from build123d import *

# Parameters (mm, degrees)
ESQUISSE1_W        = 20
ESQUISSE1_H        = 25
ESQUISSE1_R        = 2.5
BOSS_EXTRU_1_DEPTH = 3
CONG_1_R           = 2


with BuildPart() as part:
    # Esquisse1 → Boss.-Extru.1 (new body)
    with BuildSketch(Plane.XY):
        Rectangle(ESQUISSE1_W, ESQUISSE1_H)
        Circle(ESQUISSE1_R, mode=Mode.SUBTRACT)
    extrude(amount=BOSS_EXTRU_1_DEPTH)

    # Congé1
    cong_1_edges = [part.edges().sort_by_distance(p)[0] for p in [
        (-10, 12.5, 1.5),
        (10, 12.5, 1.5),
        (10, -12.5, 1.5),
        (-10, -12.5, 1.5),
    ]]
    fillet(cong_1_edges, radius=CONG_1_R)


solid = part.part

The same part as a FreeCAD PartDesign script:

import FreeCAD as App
import Part
import Sketcher
Q = App.Units.Quantity


def edges_at(feature, points):
    """Names of the edges that pass closest to the given points."""
    edges = feature.Shape.Edges
    near = lambda p: min(range(len(edges)), key=lambda i: edges[i].distToShape(Part.Vertex(*p))[0])
    return sorted({f"Edge{near(p) + 1}" for p in points})


def add_polygon(sketch, points):
    """Adds a closed chain of lines whose ends are joined by coincident constraints."""
    first, n = sketch.GeometryCount, len(points)
    for a, b in zip(points, points[1:] + points[:1]):
        sketch.addGeometry(Part.LineSegment(App.Vector(*a, 0), App.Vector(*b, 0)), False)
    for i in range(n):
        sketch.addConstraint(Sketcher.Constraint("Coincident", first + i, 2, first + (i + 1) % n, 1))

doc = App.newDocument("Part")
params = doc.addObject("Spreadsheet::Sheet", "Params")
for row, (alias, value) in enumerate([
    ("sketch1_diameter", "5 mm"),
    ("sketch1_width", "20 mm"),
    ("sketch1_height", "25 mm"),
    ("pad1_length", "3 mm"),
    ("fillet_radius", "2 mm"),
], start=1):
    params.set(f"A{row}", alias)
    params.set(f"B{row}", "=" + value)
    params.setAlias(f"B{row}", alias)

body = doc.addObject("PartDesign::Body", "Body")

sketch1 = body.newObject("Sketcher::SketchObject", "Sketch")
sketch1.AttachmentSupport = (doc.getObject("XY_Plane"), [""])
sketch1.MapMode = "FlatFace"
add_polygon(sketch1, [(-10, 12.5), (-10, -12.5), (10, -12.5), (10, 12.5)])
sketch1.addGeometry(Part.Circle(App.Vector(0, 0, 0), App.Vector(0, 0, 1), 2.5), False)
sketch1.addConstraint([
    Sketcher.Constraint("Vertical", 0),
    Sketcher.Constraint("Horizontal", 1),
    Sketcher.Constraint("Vertical", 2),
    Sketcher.Constraint("Horizontal", 3),
    Sketcher.Constraint("Coincident", 4, 3, -1, 1),
    Sketcher.Constraint("Symmetric", 0, 2, 2, 2, -1, 1),
    Sketcher.Constraint("Diameter", 4, Q("5 mm")),
    Sketcher.Constraint("DistanceX", 1, 1, 1, 2, Q("20 mm")),
    Sketcher.Constraint("DistanceY", 0, 2, 0, 1, Q("25 mm")),
])
sketch1.setExpression("Constraints[10]", "Params.sketch1_diameter")
sketch1.setExpression("Constraints[11]", "Params.sketch1_width")
sketch1.setExpression("Constraints[12]", "Params.sketch1_height")
pad1 = body.newObject("PartDesign::Pad", "Pad")
pad1.Profile = sketch1
pad1.setExpression("Length", "Params.pad1_length")
doc.recompute()

fillet = body.newObject("PartDesign::Fillet", "Fillet")
fillet.Base = (pad1, edges_at(pad1, [
    (-10, 12.5, 1.5),
    (10, 12.5, 1.5),
    (10, -12.5, 1.5),
    (-10, -12.5, 1.5),
]))
fillet.setExpression("Radius", "Params.fillet_radius")

doc.recompute()
